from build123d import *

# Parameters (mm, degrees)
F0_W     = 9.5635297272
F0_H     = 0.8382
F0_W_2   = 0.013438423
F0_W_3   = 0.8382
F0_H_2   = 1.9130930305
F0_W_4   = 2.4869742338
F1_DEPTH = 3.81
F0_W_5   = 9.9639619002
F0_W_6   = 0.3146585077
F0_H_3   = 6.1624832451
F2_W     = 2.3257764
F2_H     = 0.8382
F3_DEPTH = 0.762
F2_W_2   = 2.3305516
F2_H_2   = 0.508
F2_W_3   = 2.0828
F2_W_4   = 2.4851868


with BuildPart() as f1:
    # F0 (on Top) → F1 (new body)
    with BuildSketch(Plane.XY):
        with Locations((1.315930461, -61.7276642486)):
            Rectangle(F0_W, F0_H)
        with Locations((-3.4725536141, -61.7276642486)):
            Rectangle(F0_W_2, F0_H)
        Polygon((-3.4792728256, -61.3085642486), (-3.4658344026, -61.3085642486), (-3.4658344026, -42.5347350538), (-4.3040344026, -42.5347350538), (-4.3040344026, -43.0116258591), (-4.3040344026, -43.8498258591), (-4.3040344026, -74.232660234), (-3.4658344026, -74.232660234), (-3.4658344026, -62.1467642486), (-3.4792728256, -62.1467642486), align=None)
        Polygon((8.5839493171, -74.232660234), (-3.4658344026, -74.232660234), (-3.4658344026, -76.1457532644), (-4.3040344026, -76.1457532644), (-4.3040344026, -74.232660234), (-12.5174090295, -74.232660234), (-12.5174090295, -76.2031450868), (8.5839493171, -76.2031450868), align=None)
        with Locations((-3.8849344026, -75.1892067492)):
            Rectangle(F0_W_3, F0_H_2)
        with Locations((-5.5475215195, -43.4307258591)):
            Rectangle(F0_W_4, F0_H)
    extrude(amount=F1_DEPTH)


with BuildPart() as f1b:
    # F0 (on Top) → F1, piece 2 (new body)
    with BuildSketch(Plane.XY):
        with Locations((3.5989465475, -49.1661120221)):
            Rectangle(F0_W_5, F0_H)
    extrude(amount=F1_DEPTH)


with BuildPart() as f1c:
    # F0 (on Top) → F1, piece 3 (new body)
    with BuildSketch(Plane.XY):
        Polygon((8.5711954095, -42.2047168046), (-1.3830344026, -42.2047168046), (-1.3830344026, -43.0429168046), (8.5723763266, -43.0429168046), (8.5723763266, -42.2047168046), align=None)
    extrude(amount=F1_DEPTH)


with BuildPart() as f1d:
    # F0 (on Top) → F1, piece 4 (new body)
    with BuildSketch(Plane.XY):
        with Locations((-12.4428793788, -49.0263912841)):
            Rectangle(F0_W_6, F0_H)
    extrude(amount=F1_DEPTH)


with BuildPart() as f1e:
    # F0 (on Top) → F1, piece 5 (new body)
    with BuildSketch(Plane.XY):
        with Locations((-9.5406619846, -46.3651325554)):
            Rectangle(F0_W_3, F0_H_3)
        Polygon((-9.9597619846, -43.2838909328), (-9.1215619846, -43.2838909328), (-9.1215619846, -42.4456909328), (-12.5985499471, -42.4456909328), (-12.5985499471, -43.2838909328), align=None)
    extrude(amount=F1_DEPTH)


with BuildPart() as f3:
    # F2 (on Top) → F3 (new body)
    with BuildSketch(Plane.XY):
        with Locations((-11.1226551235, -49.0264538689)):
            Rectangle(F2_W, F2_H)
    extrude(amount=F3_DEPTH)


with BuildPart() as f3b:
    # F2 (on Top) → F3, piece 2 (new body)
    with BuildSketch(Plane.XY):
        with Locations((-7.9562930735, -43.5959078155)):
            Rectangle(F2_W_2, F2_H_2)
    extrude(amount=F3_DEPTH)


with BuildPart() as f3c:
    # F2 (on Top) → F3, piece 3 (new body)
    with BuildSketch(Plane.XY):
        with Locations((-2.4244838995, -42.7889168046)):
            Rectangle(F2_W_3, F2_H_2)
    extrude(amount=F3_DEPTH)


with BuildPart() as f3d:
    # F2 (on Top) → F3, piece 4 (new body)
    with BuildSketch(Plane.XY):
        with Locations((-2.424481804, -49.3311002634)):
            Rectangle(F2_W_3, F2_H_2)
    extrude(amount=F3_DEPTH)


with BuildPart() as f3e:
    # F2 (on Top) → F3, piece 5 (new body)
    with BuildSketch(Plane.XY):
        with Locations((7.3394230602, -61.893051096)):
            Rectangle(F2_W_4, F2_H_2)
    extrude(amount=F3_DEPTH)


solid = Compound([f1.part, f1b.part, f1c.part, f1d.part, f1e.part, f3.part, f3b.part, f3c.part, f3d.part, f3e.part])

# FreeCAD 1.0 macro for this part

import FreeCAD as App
import Part
import Sketcher

V = App.Vector
Q = App.Units.Quantity


def add_polygon(sketch, points):
    """Adds a closed chain of lines whose ends are joined by coincident constraints."""
    first, n = sketch.GeometryCount, len(points)
    for a, b in zip(points, points[1:] + points[:1]):
        sketch.addGeometry(Part.LineSegment(App.Vector(*a, 0), App.Vector(*b, 0)), False)
    for i in range(n):
        sketch.addConstraint(Sketcher.Constraint("Coincident", first + i, 2, first + (i + 1) % n, 1))

doc = App.newDocument("Part")
body = doc.addObject("PartDesign::Body", "Body")

# Sketch on XY plane
sketch1 = body.newObject("Sketcher::SketchObject", "Sketch")
sketch1.AttachmentSupport = (doc.getObject("XY_Plane"), [""])
sketch1.MapMode = "FlatFace"
add_polygon(sketch1, [(6.1, -62.15), (6.1, -61.31), (-3.47, -61.31), (-3.47, -42.53), (-4.3, -42.53), (-4.3, -43.01), (-6.79, -43.01), (-6.79, -43.85), (-4.3, -43.85), (-4.3, -74.23), (-12.52, -74.23), (-12.52, -76.2), (8.58, -76.2), (8.58, -74.23), (-3.47, -74.23), (-3.47, -62.15)])  # lines 0-15
sketch1.addConstraint([
    Sketcher.Constraint("Vertical", 0),
    Sketcher.Constraint("Horizontal", 1),
    Sketcher.Constraint("Vertical", 2),
    Sketcher.Constraint("Horizontal", 3),
    Sketcher.Constraint("Vertical", 4),
    Sketcher.Constraint("Horizontal", 5),
    Sketcher.Constraint("Vertical", 6),
    Sketcher.Constraint("Horizontal", 7),
    Sketcher.Constraint("Vertical", 8),
    Sketcher.Constraint("Horizontal", 9),
    Sketcher.Constraint("Vertical", 10),
    Sketcher.Constraint("Horizontal", 11),
    Sketcher.Constraint("Vertical", 12),
    Sketcher.Constraint("Horizontal", 13),
    Sketcher.Constraint("Vertical", 14),
    Sketcher.Constraint("Horizontal", 15),
    Sketcher.Constraint("Horizontal", 9, 2, 12, 2),
    Sketcher.Constraint("Vertical", 4, 2, 7, 2),
    Sketcher.Constraint("Vertical", 2, 2, 13, 2),
    Sketcher.Constraint("Equal", 3, 0),
    Sketcher.Constraint("Equal", 0, 6),
    Sketcher.Constraint("DistanceX", 3, 2, 3, 1, Q("0.033 in")),
    Sketcher.Constraint("DistanceX", 1, 2, 1, 1, Q("9.56353 mm")),
    Sketcher.Constraint("DistanceX", 11, 1, 11, 2, Q("21.101358 mm")),
    Sketcher.Constraint("DistanceY", 2, 1, 2, 2, Q("18.773829 mm")),
    Sketcher.Constraint("DistanceY", 4, 2, 4, 1, Q("0.476891 mm")),
    Sketcher.Constraint("DistanceX", 9, 2, 6, 2, Q("5.7264 mm")),
    Sketcher.Constraint("DistanceX", 5, 2, 5, 1, Q("2.486974 mm")),
    Sketcher.Constraint("DistanceY", 8, 2, 8, 1, Q("30.382834 mm")),
    Sketcher.Constraint("DistanceY", 10, 2, 10, 1, Q("1.970485 mm")),
    Sketcher.Constraint("DistanceX", 5, 2, -1, 1, Q("6.791009 mm")),
    Sketcher.Constraint("DistanceY", 8, 2, -1, 1, Q("74.23266 mm")),
])
pad1 = body.newObject("PartDesign::Pad", "Pad")
pad1.Profile = sketch1
pad1.Length = Q("0.15 in")
body2 = doc.addObject("PartDesign::Body", "Body001")

# Sketch on XY plane
sketch2 = body2.newObject("Sketcher::SketchObject", "Sketch001")
sketch2.AttachmentSupport = (doc.getObject("XY_Plane001"), [""])
sketch2.MapMode = "FlatFace"
add_polygon(sketch2, [(-1.4, -48.7), (-1.4, -49.6), (8.6, -49.6), (8.6, -48.7)])  # lines 0-3
sketch2.addConstraint([
    Sketcher.Constraint("Vertical", 0),
    Sketcher.Constraint("Horizontal", 1),
    Sketcher.Constraint("Vertical", 2),
    Sketcher.Constraint("Horizontal", 3),
    Sketcher.Constraint("DistanceY", 0, 2, 0, 1, Q("0.033 in")),
    Sketcher.Constraint("DistanceX", 1, 1, 1, 2, Q("9.963962 mm")),
    Sketcher.Constraint("DistanceX", 0, 2, -1, 1, Q("1.383034 mm")),
    Sketcher.Constraint("DistanceY", 0, 2, -1, 1, Q("49.585212 mm")),
])
pad2 = body2.newObject("PartDesign::Pad", "Pad001")
pad2.Profile = sketch2
pad2.Length = Q("0.15 in")
body3 = doc.addObject("PartDesign::Body", "Body002")

# Sketch on XY plane
sketch3 = body3.newObject("Sketcher::SketchObject", "Sketch002")
sketch3.AttachmentSupport = (doc.getObject("XY_Plane002"), [""])
sketch3.MapMode = "FlatFace"
add_polygon(sketch3, [(-1.4, -42.2), (-1.4, -43), (8.6, -43), (8.6, -42.2)])  # lines 0-3
sketch3.addConstraint([
    Sketcher.Constraint("Vertical", 0),
    Sketcher.Constraint("Horizontal", 1),
    Sketcher.Constraint("Vertical", 2),
    Sketcher.Constraint("Horizontal", 3),
    Sketcher.Constraint("DistanceY", 0, 2, 0, 1, Q("0.033 in")),
    Sketcher.Constraint("DistanceX", 1, 1, 1, 2, Q("9.955411 mm")),
    Sketcher.Constraint("DistanceX", 0, 2, -1, 1, Q("1.383034 mm")),
    Sketcher.Constraint("DistanceY", 0, 2, -1, 1, Q("43.042917 mm")),
])
pad3 = body3.newObject("PartDesign::Pad", "Pad002")
pad3.Profile = sketch3
pad3.Length = Q("0.15 in")
body4 = doc.addObject("PartDesign::Body", "Body003")

# Sketch on XY plane
sketch4 = body4.newObject("Sketcher::SketchObject", "Sketch003")
sketch4.AttachmentSupport = (doc.getObject("XY_Plane003"), [""])
sketch4.MapMode = "FlatFace"
add_polygon(sketch4, [(-12.6, -48.61), (-12.6, -49.45), (-12.29, -49.45), (-12.29, -48.61)])  # lines 0-3
sketch4.addConstraint([
    Sketcher.Constraint("Vertical", 0),
    Sketcher.Constraint("Horizontal", 1),
    Sketcher.Constraint("Vertical", 2),
    Sketcher.Constraint("Horizontal", 3),
    Sketcher.Constraint("DistanceY", 0, 2, 0, 1, Q("0.033 in")),
    Sketcher.Constraint("DistanceX", 1, 1, 1, 2, Q("0.314659 mm")),
    Sketcher.Constraint("DistanceX", 0, 2, -1, 1, Q("12.600209 mm")),
    Sketcher.Constraint("DistanceY", 0, 2, -1, 1, Q("49.445491 mm")),
])
pad4 = body4.newObject("PartDesign::Pad", "Pad003")
pad4.Profile = sketch4
pad4.Length = Q("0.15 in")
body5 = doc.addObject("PartDesign::Body", "Body004")

# Sketch on XY plane
sketch5 = body5.newObject("Sketcher::SketchObject", "Sketch004")
sketch5.AttachmentSupport = (doc.getObject("XY_Plane004"), [""])
sketch5.MapMode = "FlatFace"
add_polygon(sketch5, [(-10, -43.3), (-10, -49.4), (-9.1, -49.4), (-9.1, -42.4), (-12.6, -42.4), (-12.6, -43.3)])  # lines 0-5
sketch5.addConstraint([
    Sketcher.Constraint("Vertical", 0),
    Sketcher.Constraint("Horizontal", 1),
    Sketcher.Constraint("Vertical", 2),
    Sketcher.Constraint("Horizontal", 3),
    Sketcher.Constraint("Vertical", 4),
    Sketcher.Constraint("Horizontal", 5),
    Sketcher.Constraint("Equal", 1, 4),
    Sketcher.Constraint("DistanceX", 1, 1, 1, 2, Q("0.033 in")),
    Sketcher.Constraint("DistanceX", 3, 2, 3, 1, Q("3.476988 mm")),
    Sketcher.Constraint("DistanceY", 0, 2, 0, 1, Q("6.162483 mm")),
    Sketcher.Constraint("DistanceX", 0, 2, -1, 1, Q("9.959762 mm")),
    Sketcher.Constraint("DistanceY", 2, 2, -1, 1, Q("42.445691 mm")),
])
pad5 = body5.newObject("PartDesign::Pad", "Pad004")
pad5.Profile = sketch5
pad5.Length = Q("0.15 in")
body6 = doc.addObject("PartDesign::Body", "Body005")

# Sketch on XY plane
sketch6 = body6.newObject("Sketcher::SketchObject", "Sketch005")
sketch6.AttachmentSupport = (doc.getObject("XY_Plane005"), [""])
sketch6.MapMode = "FlatFace"
add_polygon(sketch6, [(-12.3, -48.6), (-12.3, -49.4), (-10, -49.4), (-10, -48.6)])  # lines 0-3
sketch6.addConstraint([
    Sketcher.Constraint("Vertical", 0),
    Sketcher.Constraint("Horizontal", 1),
    Sketcher.Constraint("Vertical", 2),
    Sketcher.Constraint("Horizontal", 3),
    Sketcher.Constraint("DistanceY", 0, 2, 0, 1, Q("0.033 in")),
    Sketcher.Constraint("DistanceX", 1, 1, 1, 2, Q("2.325776 mm")),
    Sketcher.Constraint("DistanceX", 0, 2, -1, 1, Q("12.285543 mm")),
    Sketcher.Constraint("DistanceY", 0, 2, -1, 1, Q("49.445554 mm")),
])
pad6 = body6.newObject("PartDesign::Pad", "Pad005")
pad6.Profile = sketch6
pad6.Length = Q("0.03 in")
body7 = doc.addObject("PartDesign::Body", "Body006")

# Sketch on XY plane
sketch7 = body7.newObject("Sketcher::SketchObject", "Sketch006")
sketch7.AttachmentSupport = (doc.getObject("XY_Plane006"), [""])
sketch7.MapMode = "FlatFace"
add_polygon(sketch7, [(-9.1, -43.3), (-9.1, -43.8), (-6.8, -43.8), (-6.8, -43.3)])  # lines 0-3
sketch7.addConstraint([
    Sketcher.Constraint("Vertical", 0),
    Sketcher.Constraint("Horizontal", 1),
    Sketcher.Constraint("Vertical", 2),
    Sketcher.Constraint("Horizontal", 3),
    Sketcher.Constraint("DistanceY", 0, 2, 0, 1, Q("0.02 in")),
    Sketcher.Constraint("DistanceX", 1, 1, 1, 2, Q("2.330552 mm")),
    Sketcher.Constraint("DistanceX", 0, 2, -1, 1, Q("9.121569 mm")),
    Sketcher.Constraint("DistanceY", 0, 2, -1, 1, Q("43.849908 mm")),
])
pad7 = body7.newObject("PartDesign::Pad", "Pad006")
pad7.Profile = sketch7
pad7.Length = Q("0.03 in")
body8 = doc.addObject("PartDesign::Body", "Body007")

# Sketch on XY plane
sketch8 = body8.newObject("Sketcher::SketchObject", "Sketch007")
sketch8.AttachmentSupport = (doc.getObject("XY_Plane007"), [""])
sketch8.MapMode = "FlatFace"
add_polygon(sketch8, [(-3.5, -42.5), (-3.5, -43), (-1.4, -43), (-1.4, -42.5)])  # lines 0-3
sketch8.addConstraint([
    Sketcher.Constraint("Vertical", 0),
    Sketcher.Constraint("Horizontal", 1),
    Sketcher.Constraint("Vertical", 2),
    Sketcher.Constraint("Horizontal", 3),
    Sketcher.Constraint("DistanceY", 0, 2, 0, 1, Q("0.02 in")),
    Sketcher.Constraint("DistanceX", 1, 1, 1, 2, Q("0.082 in")),
    Sketcher.Constraint("DistanceX", 0, 2, -1, 1, Q("3.465884 mm")),
    Sketcher.Constraint("DistanceY", 0, 2, -1, 1, Q("43.042917 mm")),
])
pad8 = body8.newObject("PartDesign::Pad", "Pad007")
pad8.Profile = sketch8
pad8.Length = Q("0.03 in")
body9 = doc.addObject("PartDesign::Body", "Body008")

# Sketch on XY plane
sketch9 = body9.newObject("Sketcher::SketchObject", "Sketch008")
sketch9.AttachmentSupport = (doc.getObject("XY_Plane008"), [""])
sketch9.MapMode = "FlatFace"
add_polygon(sketch9, [(-3.5, -49.1), (-3.5, -49.6), (-1.4, -49.6), (-1.4, -49.1)])  # lines 0-3
sketch9.addConstraint([
    Sketcher.Constraint("Vertical", 0),
    Sketcher.Constraint("Horizontal", 1),
    Sketcher.Constraint("Vertical", 2),
    Sketcher.Constraint("Horizontal", 3),
    Sketcher.Constraint("DistanceY", 0, 2, 0, 1, Q("0.02 in")),
    Sketcher.Constraint("DistanceX", 1, 1, 1, 2, Q("0.082 in")),
    Sketcher.Constraint("DistanceY", 0, 2, -1, 1, Q("49.5851 mm")),
    Sketcher.Constraint("DistanceX", 0, 2, -1, 1, Q("3.465882 mm")),
])
pad9 = body9.newObject("PartDesign::Pad", "Pad008")
pad9.Profile = sketch9
pad9.Length = Q("0.03 in")
body10 = doc.addObject("PartDesign::Body", "Body009")

# Sketch on XY plane
sketch10 = body10.newObject("Sketcher::SketchObject", "Sketch009")
sketch10.AttachmentSupport = (doc.getObject("XY_Plane009"), [""])
sketch10.MapMode = "FlatFace"
add_polygon(sketch10, [(6.1, -61.6), (6.1, -62.1), (8.6, -62.1), (8.6, -61.6)])  # lines 0-3
sketch10.addConstraint([
    Sketcher.Constraint("Vertical", 0),
    Sketcher.Constraint("Horizontal", 1),
    Sketcher.Constraint("Vertical", 2),
    Sketcher.Constraint("Horizontal", 3),
    Sketcher.Constraint("DistanceY", 0, 2, 0, 1, Q("0.02 in")),
    Sketcher.Constraint("DistanceX", 1, 1, 1, 2, Q("2.485187 mm")),
    Sketcher.Constraint("DistanceX", -1, 1, 0, 2, Q("6.09683 mm")),
    Sketcher.Constraint("DistanceY", 0, 2, -1, 1, Q("62.147051 mm")),
])
pad10 = body10.newObject("PartDesign::Pad", "Pad009")
pad10.Profile = sketch10
pad10.Length = Q("0.03 in")

doc.recompute()
